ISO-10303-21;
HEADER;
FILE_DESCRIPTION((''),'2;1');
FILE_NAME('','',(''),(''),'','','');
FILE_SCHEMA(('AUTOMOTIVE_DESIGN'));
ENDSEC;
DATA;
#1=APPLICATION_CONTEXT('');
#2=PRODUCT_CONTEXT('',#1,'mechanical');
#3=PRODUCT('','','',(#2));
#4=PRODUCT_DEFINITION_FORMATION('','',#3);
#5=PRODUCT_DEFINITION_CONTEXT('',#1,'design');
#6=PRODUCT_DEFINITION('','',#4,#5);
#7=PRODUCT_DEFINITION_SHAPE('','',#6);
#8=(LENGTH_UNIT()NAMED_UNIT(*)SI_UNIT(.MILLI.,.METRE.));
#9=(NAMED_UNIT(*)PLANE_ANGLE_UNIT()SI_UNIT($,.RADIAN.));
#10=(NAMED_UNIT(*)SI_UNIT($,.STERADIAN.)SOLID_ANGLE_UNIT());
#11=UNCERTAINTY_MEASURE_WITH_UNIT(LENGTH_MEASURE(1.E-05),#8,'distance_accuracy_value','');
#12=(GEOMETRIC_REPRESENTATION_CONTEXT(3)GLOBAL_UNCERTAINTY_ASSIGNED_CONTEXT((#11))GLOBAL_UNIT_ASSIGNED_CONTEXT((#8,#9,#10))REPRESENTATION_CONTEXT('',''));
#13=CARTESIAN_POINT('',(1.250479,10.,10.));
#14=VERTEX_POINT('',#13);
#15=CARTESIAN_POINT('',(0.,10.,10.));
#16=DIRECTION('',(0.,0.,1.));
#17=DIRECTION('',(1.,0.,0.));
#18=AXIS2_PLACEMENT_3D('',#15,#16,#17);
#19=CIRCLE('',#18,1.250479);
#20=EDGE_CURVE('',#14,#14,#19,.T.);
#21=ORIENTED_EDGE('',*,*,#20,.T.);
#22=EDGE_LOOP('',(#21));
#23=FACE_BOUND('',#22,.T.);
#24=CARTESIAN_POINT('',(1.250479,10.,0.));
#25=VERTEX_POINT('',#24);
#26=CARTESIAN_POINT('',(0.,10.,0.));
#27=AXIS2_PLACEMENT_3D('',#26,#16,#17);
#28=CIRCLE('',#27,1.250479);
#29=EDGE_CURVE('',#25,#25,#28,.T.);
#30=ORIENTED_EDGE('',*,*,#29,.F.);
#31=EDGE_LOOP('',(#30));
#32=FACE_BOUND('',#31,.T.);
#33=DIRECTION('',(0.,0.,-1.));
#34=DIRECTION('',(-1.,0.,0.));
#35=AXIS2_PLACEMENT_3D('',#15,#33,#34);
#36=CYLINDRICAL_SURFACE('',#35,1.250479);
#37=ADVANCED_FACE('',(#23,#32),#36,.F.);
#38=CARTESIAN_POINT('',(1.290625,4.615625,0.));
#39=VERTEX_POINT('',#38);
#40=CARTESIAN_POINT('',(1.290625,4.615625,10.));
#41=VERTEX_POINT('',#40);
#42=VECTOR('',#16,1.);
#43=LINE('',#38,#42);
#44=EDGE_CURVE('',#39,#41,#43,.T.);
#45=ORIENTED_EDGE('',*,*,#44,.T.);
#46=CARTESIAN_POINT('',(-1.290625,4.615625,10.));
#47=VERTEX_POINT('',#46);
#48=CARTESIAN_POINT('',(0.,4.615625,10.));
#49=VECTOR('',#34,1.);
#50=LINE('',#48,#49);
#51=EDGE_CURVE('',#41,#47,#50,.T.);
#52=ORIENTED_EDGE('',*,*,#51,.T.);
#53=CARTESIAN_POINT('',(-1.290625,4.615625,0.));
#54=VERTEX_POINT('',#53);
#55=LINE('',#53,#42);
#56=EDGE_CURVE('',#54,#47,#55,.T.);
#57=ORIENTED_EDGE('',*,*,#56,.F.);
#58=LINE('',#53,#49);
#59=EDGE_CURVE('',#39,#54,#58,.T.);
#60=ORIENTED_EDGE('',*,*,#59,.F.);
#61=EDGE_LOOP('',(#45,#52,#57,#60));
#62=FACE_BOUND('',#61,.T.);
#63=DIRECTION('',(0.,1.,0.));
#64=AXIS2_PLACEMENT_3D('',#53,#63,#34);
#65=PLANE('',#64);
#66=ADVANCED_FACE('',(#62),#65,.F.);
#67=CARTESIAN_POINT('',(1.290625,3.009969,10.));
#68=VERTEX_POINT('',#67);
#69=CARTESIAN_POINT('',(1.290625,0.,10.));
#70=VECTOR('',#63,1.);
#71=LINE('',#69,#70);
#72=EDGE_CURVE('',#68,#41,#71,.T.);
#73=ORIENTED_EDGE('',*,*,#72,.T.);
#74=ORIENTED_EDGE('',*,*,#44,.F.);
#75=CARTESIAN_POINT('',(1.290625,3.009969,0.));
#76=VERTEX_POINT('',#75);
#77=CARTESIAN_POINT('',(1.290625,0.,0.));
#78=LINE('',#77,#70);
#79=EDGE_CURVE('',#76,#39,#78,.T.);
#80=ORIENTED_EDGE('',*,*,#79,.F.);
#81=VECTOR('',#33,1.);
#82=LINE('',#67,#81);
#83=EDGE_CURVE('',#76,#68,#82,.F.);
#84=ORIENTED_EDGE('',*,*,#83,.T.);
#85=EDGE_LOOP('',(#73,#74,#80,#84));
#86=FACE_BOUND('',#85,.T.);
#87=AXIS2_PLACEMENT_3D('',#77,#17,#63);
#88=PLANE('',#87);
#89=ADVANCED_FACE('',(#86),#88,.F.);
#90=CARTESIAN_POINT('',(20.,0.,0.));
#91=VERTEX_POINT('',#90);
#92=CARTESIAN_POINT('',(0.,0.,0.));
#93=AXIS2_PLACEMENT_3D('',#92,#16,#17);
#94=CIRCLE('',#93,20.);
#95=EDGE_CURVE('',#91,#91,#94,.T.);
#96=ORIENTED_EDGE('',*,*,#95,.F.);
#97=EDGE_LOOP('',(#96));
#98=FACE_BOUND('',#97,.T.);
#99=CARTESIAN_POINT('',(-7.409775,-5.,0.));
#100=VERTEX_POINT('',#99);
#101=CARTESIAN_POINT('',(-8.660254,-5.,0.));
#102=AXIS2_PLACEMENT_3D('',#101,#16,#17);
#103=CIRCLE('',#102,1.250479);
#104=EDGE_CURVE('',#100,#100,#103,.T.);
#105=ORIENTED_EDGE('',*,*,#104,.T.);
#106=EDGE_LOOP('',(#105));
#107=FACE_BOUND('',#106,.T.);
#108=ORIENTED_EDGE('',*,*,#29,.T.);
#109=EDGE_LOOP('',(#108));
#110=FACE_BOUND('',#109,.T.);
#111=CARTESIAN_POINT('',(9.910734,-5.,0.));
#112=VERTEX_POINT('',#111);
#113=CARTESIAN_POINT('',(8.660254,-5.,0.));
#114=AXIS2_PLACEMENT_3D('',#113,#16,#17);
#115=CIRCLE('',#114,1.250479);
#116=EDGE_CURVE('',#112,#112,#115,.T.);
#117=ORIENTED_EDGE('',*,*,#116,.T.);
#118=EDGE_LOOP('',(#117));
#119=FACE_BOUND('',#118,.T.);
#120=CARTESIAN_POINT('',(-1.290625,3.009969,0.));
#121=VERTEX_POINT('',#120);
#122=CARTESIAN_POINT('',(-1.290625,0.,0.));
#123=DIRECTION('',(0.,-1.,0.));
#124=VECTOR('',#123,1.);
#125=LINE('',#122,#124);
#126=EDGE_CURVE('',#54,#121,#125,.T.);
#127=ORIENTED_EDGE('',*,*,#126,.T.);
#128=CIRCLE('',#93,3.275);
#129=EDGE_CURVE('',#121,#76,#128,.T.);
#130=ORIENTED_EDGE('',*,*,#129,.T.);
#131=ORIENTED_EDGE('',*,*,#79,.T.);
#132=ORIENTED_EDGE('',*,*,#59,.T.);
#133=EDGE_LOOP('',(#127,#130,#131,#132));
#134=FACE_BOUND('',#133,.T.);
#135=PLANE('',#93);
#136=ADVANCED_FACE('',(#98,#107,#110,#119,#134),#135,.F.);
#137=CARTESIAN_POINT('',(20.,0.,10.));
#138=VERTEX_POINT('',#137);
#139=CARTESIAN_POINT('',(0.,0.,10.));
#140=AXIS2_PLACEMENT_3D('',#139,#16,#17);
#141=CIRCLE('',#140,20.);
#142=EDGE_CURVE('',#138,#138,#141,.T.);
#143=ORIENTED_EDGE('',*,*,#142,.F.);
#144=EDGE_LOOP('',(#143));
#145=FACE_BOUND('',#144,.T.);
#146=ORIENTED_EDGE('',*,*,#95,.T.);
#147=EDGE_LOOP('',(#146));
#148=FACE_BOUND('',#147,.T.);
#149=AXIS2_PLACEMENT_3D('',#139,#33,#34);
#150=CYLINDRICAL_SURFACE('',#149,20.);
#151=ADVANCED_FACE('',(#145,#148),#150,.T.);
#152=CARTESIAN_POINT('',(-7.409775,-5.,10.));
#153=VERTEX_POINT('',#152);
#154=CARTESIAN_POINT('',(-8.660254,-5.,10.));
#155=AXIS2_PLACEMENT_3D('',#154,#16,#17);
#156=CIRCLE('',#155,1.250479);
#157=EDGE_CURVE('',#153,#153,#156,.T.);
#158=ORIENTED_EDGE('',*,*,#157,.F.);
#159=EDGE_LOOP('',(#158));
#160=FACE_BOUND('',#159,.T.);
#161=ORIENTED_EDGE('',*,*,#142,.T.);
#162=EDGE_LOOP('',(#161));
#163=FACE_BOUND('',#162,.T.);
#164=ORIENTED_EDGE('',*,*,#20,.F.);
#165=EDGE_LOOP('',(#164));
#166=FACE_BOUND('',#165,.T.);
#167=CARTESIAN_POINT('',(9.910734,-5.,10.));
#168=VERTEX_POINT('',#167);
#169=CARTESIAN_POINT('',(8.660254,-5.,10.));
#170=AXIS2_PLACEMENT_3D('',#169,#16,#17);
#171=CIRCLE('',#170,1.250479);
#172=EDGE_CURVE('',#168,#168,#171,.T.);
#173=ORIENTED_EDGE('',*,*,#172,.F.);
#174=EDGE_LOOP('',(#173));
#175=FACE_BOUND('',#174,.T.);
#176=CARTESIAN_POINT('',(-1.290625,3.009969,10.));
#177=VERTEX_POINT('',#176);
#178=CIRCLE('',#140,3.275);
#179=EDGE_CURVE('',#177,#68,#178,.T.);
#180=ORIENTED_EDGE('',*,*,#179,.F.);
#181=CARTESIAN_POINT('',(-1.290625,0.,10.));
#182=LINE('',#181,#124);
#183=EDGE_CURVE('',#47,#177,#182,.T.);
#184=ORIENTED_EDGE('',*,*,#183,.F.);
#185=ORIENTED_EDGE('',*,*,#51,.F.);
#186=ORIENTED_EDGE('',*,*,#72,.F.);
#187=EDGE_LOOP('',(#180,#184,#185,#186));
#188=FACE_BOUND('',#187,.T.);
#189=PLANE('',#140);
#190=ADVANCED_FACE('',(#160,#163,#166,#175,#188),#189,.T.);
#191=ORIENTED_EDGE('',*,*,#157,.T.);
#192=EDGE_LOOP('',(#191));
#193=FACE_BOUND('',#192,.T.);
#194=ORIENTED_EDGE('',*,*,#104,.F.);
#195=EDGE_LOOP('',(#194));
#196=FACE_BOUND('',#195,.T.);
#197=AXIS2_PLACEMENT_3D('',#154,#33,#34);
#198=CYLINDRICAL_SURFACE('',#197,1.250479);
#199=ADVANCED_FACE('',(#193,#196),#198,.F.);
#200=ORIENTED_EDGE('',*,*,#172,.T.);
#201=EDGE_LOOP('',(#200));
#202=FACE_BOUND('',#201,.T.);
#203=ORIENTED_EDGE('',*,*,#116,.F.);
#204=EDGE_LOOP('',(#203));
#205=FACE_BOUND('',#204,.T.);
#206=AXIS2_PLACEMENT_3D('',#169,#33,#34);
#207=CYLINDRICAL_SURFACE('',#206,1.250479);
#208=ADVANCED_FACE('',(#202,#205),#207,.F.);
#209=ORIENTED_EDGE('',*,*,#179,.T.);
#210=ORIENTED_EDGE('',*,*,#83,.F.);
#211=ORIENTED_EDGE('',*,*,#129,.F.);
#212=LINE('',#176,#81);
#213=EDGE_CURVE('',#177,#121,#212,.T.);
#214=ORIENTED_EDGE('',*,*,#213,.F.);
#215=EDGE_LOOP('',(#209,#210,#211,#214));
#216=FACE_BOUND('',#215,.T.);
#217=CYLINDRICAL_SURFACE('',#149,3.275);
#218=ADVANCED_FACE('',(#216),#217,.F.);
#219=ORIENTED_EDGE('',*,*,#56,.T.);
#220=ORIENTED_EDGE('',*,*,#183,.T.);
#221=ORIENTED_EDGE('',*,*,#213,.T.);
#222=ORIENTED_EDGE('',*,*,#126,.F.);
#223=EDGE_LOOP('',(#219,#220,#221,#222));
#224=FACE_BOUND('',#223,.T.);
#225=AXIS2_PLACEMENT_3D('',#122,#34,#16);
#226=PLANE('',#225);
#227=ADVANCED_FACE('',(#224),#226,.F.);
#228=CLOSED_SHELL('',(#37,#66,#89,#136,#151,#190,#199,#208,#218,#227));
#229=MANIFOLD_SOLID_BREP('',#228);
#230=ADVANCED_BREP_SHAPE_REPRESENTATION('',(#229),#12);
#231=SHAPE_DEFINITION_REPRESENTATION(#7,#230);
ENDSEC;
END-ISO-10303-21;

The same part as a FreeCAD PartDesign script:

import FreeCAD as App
import Part
import Sketcher
from FreeCAD import Vector


def add_polygon(sketch, points):
    """Adds a closed chain of lines whose ends are joined by coincident constraints."""
    first, n = sketch.GeometryCount, len(points)
    for a, b in zip(points, points[1:] + points[:1]):
        sketch.addGeometry(Part.LineSegment(App.Vector(*a, 0), App.Vector(*b, 0)), False)
    for i in range(n):
        sketch.addConstraint(Sketcher.Constraint("Coincident", first + i, 2, first + (i + 1) % n, 1))

doc = App.newDocument("Part")
body = doc.addObject("PartDesign::Body", "Body")

# Sketch on XY plane
sketch1 = body.newObject("Sketcher::SketchObject", "Sketch")
sketch1.AttachmentSupport = (doc.getObject("XY_Plane"), [""])
sketch1.MapMode = "FlatFace"
sketch1.addGeometry(Part.Circle(Vector(0, 0, 0), Vector(0, 0, 1), 20), False)
sketch1.addGeometry(Part.Circle(Vector(-8.660254, -5, 0), Vector(0, 0, 1), 1.250479), False)
sketch1.addGeometry(Part.Circle(Vector(8.660254, -5, 0), Vector(0, 0, 1), 1.250479), False)
sketch1.addGeometry(Part.Circle(Vector(0, 0, 0), Vector(0, 0, 1), 3.275), False)
sketch1.addGeometry(Part.Circle(Vector(0, 10, 0), Vector(0, 0, 1), 1.250479), False)
sketch1.addConstraint(Sketcher.Constraint("Coincident", 0, 3, -1, 1))
sketch1.addConstraint(Sketcher.Constraint("Coincident", 3, 3, -1, 1))
sketch1.addConstraint(Sketcher.Constraint("Equal", 1, 2))
sketch1.addConstraint(Sketcher.Constraint("Equal", 2, 4))
sketch1.addConstraint(Sketcher.Constraint("Symmetric", 1, 3, 2, 3, -2))
sketch1.addConstraint(Sketcher.Constraint("PointOnObject", 4, 3, -2))
sketch1.addConstraint(Sketcher.Constraint("Diameter", 0, 40.0))
sketch1.addConstraint(Sketcher.Constraint("Diameter", 3, 6.55))
sketch1.addConstraint(Sketcher.Constraint("DistanceY", 1, 3, -1, 1, 5.0))
sketch1.addConstraint(Sketcher.Constraint("DistanceY", -1, 1, 4, 3, 10.0))
sketch1.addConstraint(Sketcher.Constraint("Diameter", 1, 2.500959))
sketch1.addConstraint(Sketcher.Constraint("DistanceX", 1, 3, 2, 3, 17.320508))
pad1 = body.newObject("PartDesign::Pad", "Pad")
pad1.Profile = sketch1
pad1.Length = 10

# Sketch on XY plane
sketch2 = body.newObject("Sketcher::SketchObject", "Sketch001")
sketch2.AttachmentSupport = (doc.getObject("XY_Plane"), [""])
sketch2.MapMode = "FlatFace"
sketch2.AttachmentOffset = App.Placement(Vector(0, 0, 10), App.Rotation())
add_polygon(sketch2, [(-1.290625, 4.615625), (-1.290625, 0), (1.290625, 0), (1.290625, 4.615625)])  # lines 0-3
sketch2.addConstraint(Sketcher.Constraint("Vertical", 0))
sketch2.addConstraint(Sketcher.Constraint("Horizontal", 1))
sketch2.addConstraint(Sketcher.Constraint("Vertical", 2))
sketch2.addConstraint(Sketcher.Constraint("Horizontal", 3))
sketch2.addConstraint(Sketcher.Constraint("Symmetric", 0, 2, 1, 2, -1, 1))
sketch2.addConstraint(Sketcher.Constraint("DistanceX", 1, 1, 1, 2, 2.58125))
sketch2.addConstraint(Sketcher.Constraint("DistanceY", 0, 2, 0, 1, 4.615625))
pocket1 = body.newObject("PartDesign::Pocket", "Pocket")
pocket1.Profile = sketch2
pocket1.Type = "ThroughAll"
pocket1.Midplane = True

doc.recompute()
